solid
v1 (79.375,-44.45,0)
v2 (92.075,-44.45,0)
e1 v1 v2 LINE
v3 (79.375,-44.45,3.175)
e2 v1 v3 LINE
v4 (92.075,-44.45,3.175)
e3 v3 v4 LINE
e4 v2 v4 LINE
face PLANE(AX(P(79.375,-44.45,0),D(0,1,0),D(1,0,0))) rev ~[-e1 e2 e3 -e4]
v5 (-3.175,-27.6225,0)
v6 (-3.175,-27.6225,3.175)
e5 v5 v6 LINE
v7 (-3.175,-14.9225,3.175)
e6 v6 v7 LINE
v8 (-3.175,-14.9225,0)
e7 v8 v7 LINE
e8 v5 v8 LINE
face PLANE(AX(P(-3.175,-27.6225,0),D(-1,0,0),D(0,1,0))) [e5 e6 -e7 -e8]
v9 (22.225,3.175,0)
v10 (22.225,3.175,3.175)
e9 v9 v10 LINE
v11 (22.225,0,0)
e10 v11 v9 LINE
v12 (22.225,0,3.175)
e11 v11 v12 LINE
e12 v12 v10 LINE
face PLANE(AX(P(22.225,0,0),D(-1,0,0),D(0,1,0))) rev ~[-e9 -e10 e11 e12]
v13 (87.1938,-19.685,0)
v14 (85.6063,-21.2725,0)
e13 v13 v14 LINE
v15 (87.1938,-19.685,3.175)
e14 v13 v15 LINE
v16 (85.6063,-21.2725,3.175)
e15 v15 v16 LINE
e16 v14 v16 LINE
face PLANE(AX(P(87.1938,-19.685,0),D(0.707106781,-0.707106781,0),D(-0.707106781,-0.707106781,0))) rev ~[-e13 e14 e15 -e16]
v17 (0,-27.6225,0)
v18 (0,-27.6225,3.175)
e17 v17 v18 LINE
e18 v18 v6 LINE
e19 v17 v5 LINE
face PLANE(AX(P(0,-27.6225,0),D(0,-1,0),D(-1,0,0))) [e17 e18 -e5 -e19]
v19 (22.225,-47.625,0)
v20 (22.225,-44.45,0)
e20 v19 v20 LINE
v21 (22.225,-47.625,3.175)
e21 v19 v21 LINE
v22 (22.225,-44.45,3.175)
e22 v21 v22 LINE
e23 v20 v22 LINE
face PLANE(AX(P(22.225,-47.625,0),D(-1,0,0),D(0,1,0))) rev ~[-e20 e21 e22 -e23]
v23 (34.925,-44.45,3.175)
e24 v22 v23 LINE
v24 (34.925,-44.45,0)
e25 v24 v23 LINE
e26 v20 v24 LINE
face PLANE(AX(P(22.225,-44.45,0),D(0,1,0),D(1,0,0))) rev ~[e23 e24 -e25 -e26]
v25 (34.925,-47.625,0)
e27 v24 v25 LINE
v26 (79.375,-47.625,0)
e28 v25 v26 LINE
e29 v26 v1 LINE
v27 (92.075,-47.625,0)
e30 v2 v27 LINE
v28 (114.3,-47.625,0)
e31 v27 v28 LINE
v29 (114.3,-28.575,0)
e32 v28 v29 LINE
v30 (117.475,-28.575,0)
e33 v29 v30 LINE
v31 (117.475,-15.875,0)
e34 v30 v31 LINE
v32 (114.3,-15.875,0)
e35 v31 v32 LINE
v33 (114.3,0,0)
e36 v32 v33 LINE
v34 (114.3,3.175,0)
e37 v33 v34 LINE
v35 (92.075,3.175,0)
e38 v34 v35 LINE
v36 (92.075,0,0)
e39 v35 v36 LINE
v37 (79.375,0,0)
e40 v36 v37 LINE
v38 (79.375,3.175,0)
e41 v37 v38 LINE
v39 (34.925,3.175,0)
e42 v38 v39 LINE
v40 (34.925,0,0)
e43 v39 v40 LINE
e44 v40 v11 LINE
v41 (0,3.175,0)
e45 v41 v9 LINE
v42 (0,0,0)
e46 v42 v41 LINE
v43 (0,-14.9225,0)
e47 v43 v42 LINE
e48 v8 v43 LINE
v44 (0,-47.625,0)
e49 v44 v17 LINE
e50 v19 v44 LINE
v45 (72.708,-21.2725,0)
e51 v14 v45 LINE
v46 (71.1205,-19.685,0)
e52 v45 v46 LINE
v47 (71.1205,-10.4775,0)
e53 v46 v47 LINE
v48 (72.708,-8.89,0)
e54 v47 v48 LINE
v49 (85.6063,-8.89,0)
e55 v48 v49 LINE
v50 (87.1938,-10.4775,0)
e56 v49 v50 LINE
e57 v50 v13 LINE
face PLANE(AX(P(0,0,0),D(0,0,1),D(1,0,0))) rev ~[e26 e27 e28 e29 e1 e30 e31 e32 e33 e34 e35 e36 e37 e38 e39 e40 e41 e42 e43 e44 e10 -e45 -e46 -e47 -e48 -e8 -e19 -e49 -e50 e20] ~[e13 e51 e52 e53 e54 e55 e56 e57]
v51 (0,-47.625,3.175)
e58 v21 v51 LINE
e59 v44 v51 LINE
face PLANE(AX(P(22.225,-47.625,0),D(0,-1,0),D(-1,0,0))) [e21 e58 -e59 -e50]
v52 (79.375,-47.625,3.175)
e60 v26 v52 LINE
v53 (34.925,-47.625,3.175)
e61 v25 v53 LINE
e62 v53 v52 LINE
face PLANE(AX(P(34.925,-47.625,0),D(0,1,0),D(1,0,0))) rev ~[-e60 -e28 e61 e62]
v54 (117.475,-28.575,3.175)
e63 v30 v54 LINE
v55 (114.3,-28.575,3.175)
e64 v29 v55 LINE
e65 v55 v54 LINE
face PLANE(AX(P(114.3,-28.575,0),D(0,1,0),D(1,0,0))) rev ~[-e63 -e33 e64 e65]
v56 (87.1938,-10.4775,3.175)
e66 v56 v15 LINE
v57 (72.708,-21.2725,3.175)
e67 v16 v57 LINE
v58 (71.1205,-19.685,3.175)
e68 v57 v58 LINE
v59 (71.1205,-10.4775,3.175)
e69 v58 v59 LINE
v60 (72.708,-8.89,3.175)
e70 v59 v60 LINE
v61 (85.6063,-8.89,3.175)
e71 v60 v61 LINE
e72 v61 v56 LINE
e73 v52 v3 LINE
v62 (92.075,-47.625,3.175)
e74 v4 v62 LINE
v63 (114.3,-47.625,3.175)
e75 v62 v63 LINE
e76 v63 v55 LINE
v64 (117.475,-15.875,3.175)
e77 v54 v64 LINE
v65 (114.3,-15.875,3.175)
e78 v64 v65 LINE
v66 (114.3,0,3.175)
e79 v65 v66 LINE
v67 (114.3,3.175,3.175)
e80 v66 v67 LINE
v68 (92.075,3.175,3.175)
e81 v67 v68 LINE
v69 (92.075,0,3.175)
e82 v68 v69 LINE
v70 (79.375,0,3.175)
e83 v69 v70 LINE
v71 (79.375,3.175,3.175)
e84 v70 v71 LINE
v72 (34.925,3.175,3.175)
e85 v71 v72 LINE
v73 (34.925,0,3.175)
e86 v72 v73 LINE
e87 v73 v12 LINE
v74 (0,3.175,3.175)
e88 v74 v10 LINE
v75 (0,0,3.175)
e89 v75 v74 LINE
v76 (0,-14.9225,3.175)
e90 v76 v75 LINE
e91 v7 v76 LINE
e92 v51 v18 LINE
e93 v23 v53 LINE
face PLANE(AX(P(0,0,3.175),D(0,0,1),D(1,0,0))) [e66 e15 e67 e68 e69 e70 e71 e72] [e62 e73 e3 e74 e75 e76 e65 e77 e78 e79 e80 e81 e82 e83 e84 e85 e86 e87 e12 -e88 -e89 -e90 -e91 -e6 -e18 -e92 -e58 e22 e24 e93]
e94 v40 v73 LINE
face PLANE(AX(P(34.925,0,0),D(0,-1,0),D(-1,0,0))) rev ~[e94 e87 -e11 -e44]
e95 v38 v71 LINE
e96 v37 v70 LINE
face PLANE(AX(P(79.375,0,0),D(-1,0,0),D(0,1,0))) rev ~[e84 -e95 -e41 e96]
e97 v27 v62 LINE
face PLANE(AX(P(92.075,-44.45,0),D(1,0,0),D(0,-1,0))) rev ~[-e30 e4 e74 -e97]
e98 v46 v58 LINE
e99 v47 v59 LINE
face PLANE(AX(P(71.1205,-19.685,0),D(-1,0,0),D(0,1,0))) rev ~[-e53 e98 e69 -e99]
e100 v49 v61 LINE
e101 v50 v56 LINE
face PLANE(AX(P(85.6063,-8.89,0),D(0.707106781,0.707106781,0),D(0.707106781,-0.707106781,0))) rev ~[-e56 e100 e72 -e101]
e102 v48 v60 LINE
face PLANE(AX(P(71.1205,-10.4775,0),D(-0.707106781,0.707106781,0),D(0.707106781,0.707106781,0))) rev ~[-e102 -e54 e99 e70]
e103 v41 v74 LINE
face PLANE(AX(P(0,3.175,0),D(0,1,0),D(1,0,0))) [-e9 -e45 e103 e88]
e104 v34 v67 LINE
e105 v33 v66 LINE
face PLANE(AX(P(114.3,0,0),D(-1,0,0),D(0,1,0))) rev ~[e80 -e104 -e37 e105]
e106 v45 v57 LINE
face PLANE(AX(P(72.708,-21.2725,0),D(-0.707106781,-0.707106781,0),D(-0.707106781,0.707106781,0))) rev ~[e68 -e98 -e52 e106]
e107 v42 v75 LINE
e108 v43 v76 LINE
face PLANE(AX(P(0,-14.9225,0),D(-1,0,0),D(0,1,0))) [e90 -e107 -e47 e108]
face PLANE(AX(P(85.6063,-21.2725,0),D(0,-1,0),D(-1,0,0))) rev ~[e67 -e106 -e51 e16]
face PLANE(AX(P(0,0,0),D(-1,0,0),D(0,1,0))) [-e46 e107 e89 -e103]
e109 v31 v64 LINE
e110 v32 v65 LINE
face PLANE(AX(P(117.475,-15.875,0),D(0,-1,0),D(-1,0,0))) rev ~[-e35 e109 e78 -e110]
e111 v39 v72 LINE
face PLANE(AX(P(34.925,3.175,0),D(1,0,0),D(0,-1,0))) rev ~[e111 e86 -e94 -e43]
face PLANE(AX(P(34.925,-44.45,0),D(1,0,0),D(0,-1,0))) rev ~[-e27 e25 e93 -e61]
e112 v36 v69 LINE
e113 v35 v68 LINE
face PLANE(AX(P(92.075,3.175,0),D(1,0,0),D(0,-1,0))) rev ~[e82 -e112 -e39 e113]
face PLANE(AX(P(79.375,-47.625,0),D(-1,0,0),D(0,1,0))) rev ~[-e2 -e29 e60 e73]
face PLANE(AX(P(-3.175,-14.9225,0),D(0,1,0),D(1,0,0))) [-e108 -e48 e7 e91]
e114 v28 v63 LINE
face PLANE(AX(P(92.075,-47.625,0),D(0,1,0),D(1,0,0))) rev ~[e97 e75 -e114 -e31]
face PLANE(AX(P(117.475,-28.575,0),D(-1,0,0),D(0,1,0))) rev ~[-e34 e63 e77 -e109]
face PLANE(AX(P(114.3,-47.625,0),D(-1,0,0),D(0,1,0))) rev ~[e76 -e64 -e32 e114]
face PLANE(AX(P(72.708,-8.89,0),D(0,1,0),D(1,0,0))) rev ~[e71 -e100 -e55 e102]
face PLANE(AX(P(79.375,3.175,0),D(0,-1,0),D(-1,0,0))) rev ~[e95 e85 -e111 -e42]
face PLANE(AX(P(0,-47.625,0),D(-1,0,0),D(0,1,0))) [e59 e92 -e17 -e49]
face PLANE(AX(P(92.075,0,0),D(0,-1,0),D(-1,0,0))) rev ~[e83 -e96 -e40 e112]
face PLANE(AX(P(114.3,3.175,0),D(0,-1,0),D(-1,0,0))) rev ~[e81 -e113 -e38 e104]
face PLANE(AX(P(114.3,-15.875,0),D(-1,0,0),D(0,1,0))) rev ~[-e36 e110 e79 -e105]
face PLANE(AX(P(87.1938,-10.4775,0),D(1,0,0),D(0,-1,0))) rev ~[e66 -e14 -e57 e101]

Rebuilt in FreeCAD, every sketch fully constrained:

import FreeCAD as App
import Part
import Sketcher

V = App.Vector
Q = App.Units.Quantity


def add_polygon(sketch, points):
    """Adds a closed chain of lines whose ends are joined by coincident constraints."""
    first, n = sketch.GeometryCount, len(points)
    for a, b in zip(points, points[1:] + points[:1]):
        sketch.addGeometry(Part.LineSegment(App.Vector(*a, 0), App.Vector(*b, 0)), False)
    for i in range(n):
        sketch.addConstraint(Sketcher.Constraint("Coincident", first + i, 2, first + (i + 1) % n, 1))

doc = App.newDocument("Part")
params = doc.addObject("Spreadsheet::Sheet", "Params")
for row, (alias, value) in enumerate([
    ("sketch1_width", "0.5 in"),
    ("sketch1_width2", "1.75 in"),
    ("pad1_length", "0.125 in"),
], start=1):
    params.set(f"A{row}", alias)
    params.set(f"B{row}", "=" + value)
    params.setAlias(f"B{row}", alias)

body = doc.addObject("PartDesign::Body", "Body")

# Sketch on XY plane
sketch1 = body.newObject("Sketcher::SketchObject", "Sketch")
sketch1.AttachmentSupport = (doc.getObject("XY_Plane"), [""])
sketch1.MapMode = "FlatFace"
add_polygon(sketch1, [(34.9, 0), (22.2, 0), (22.2, 3.2), (0, 3.2), (0, -14.9), (-3.2, -14.9), (-3.2, -27.6), (0, -27.6), (0, -47.6), (22.2, -47.6), (22.2, -44.5), (34.9, -44.5), (34.9, -47.6), (79.4, -47.6), (79.4, -44.5), (92.1, -44.5), (92.1, -47.6), (114.3, -47.6), (114.3, -28.6), (117.5, -28.6), (117.5, -15.9), (114.3, -15.9), (114.3, 3.2), (92.1, 3.2), (92.1, 0), (79.4, 0), (79.4, 3.2), (34.9, 3.2)])  # lines 0-27
add_polygon(sketch1, [(87.2, -19.7), (85.6, -21.3), (72.7, -21.3), (71.1, -19.7), (71.1, -10.5), (72.7, -8.9), (85.6, -8.9), (87.2, -10.5)])  # lines 28-35
sketch1.addConstraint([
    Sketcher.Constraint("Horizontal", 0),
    Sketcher.Constraint("Vertical", 1),
    Sketcher.Constraint("Horizontal", 2),
    Sketcher.Constraint("Vertical", 3),
    Sketcher.Constraint("Horizontal", 4),
    Sketcher.Constraint("Vertical", 5),
    Sketcher.Constraint("Horizontal", 6),
    Sketcher.Constraint("Vertical", 7),
    Sketcher.Constraint("Horizontal", 8),
    Sketcher.Constraint("Vertical", 9),
    Sketcher.Constraint("Horizontal", 10),
    Sketcher.Constraint("Vertical", 11),
    Sketcher.Constraint("Horizontal", 12),
    Sketcher.Constraint("Vertical", 13),
    Sketcher.Constraint("Horizontal", 14),
    Sketcher.Constraint("Vertical", 15),
    Sketcher.Constraint("Horizontal", 16),
    Sketcher.Constraint("Vertical", 17),
    Sketcher.Constraint("Horizontal", 18),
    Sketcher.Constraint("Vertical", 19),
    Sketcher.Constraint("Horizontal", 20),
    Sketcher.Constraint("Vertical", 21),
    Sketcher.Constraint("Horizontal", 22),
    Sketcher.Constraint("Vertical", 23),
    Sketcher.Constraint("Horizontal", 24),
    Sketcher.Constraint("Vertical", 25),
    Sketcher.Constraint("Horizontal", 26),
    Sketcher.Constraint("Vertical", 27),
    Sketcher.Constraint("Horizontal", 29),
    Sketcher.Constraint("Vertical", 31),
    Sketcher.Constraint("Horizontal", 33),
    Sketcher.Constraint("Vertical", 35),
    Sketcher.Constraint("PointOnObject", 0, 2, -1),
    Sketcher.Constraint("PointOnObject", 2, 2, -2),
    Sketcher.Constraint("PointOnObject", 6, 2, -2),
    Sketcher.Constraint("PointOnObject", 23, 2, -1),
    Sketcher.Constraint("Perpendicular", 28, 30),
    Sketcher.Constraint("Perpendicular", 30, 32),
    Sketcher.Constraint("Perpendicular", 32, 34),
    Sketcher.Constraint("Horizontal", 8, 2, 11, 2),
    Sketcher.Constraint("Horizontal", 10, 2, 13, 2),
    Sketcher.Constraint("Horizontal", 12, 2, 15, 2),
    Sketcher.Constraint("Horizontal", 2, 2, 21, 2),
    Sketcher.Constraint("Horizontal", 22, 2, 25, 2),
    Sketcher.Constraint("Horizontal", 31, 2, 34, 2),
    Sketcher.Constraint("Horizontal", 30, 2, 35, 2),
    Sketcher.Constraint("Vertical", 1, 2, 8, 2),
    Sketcher.Constraint("Vertical", 17, 2, 20, 2),
    Sketcher.Constraint("Vertical", 15, 2, 22, 2),
    Sketcher.Constraint("Vertical", 13, 2, 24, 2),
    Sketcher.Constraint("Vertical", 11, 2, 26, 2),
    Sketcher.Constraint("Vertical", 29, 2, 32, 2),
    Sketcher.Constraint("Vertical", 28, 2, 33, 2),
    Sketcher.Constraint("Equal", 10, 14),
    Sketcher.Constraint("Equal", 8, 16),
    Sketcher.Constraint("Equal", 6, 18),
    Sketcher.Constraint("Equal", 20, 1),
    Sketcher.Constraint("Equal", 24, 5),
    Sketcher.Constraint("Equal", 1, 9),
    Sketcher.Constraint("Equal", 5, 19),
    Sketcher.Constraint("Equal", 17, 21),
    Sketcher.Constraint("DistanceX", 0, 2, 0, 1, Q("0.5 in")),
    Sketcher.Constraint("DistanceX", 4, 2, 0, 2, Q("1 in")),
    Sketcher.Constraint("DistanceY", 7, 2, 2, 2, Q("2 in")),
    Sketcher.Constraint("DistanceX", 12, 1, 12, 2, Q("1.75 in")),
    Sketcher.Constraint("DistanceX", -1, 1, 16, 2, Q("4.5 in")),
    Sketcher.Constraint("DistanceY", 30, 2, 25, 2, Q("0.9 in")),
    Sketcher.Constraint("DistanceY", 32, 2, -1, 1, Q("0.35 in")),
    Sketcher.Constraint("DistanceX", 29, 2, 29, 1, Q("0.5078 in")),
    Sketcher.Constraint("DistanceY", 3, 2, 3, 1, Q("0.7125 in")),
    Sketcher.Constraint("DistanceY", 31, 1, 31, 2, Q("0.3625 in")),
    Sketcher.Constraint("DistanceX", -1, 1, 28, 2, Q("85.6063 mm")),
])
sketch1.setExpression("Constraints[97]", "Params.sketch1_width")
sketch1.setExpression("Constraints[100]", "Params.sketch1_width2")
pad1 = body.newObject("PartDesign::Pad", "Pad")
pad1.Profile = sketch1
pad1.setExpression("Length", "Params.pad1_length")

doc.recompute()
